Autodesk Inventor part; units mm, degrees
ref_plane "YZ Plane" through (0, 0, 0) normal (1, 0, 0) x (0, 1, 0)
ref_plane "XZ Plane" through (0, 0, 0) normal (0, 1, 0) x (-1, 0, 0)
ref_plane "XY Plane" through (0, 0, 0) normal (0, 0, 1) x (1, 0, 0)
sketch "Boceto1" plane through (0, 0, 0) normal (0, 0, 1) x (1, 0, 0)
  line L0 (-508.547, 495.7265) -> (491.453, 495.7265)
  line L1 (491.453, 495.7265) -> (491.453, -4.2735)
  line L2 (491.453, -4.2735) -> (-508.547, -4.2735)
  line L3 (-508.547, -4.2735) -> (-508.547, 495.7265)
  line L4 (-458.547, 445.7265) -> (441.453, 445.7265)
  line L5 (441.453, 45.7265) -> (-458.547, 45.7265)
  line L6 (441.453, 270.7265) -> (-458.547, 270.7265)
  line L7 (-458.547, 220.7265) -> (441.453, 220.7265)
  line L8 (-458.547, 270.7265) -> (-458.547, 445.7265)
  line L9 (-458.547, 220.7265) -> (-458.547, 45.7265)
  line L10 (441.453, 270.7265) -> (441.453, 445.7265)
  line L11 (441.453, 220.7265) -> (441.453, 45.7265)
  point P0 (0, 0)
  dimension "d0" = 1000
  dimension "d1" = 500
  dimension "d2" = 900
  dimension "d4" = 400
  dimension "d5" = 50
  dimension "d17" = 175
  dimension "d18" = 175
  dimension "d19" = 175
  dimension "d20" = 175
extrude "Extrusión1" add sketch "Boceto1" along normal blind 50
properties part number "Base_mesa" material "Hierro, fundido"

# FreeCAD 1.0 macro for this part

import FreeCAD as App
import Part
import Sketcher
from FreeCAD import Vector
Q = App.Units.Quantity

doc = App.newDocument("Part")
params = doc.addObject("Spreadsheet::Sheet", "Params")
for row, (alias, value) in enumerate([
    ("sketch1_width", "1000 mm"),
    ("sketch1_width2", "900 mm"),
    ("sketch1_height", "500 mm"),
    ("sketch1_height2", "175 mm"),
    ("pad1_length", "50 mm"),
], start=1):
    params.set(f"A{row}", alias)
    params.set(f"B{row}", "=" + value)
    params.setAlias(f"B{row}", alias)

body = doc.addObject("PartDesign::Body", "Body")

# Sketch on XY plane
sketch1 = body.newObject("Sketcher::SketchObject", "Sketch")
sketch1.AttachmentSupport = (doc.getObject("XY_Plane"), [""])
sketch1.MapMode = "FlatFace"
sketch1.addGeometry([
    Part.LineSegment(Vector(491, 496, 0), Vector(-509, 496, 0)),  # 0
    Part.LineSegment(Vector(-509, 496, 0), Vector(-509, -4, 0)),  # 1
    Part.LineSegment(Vector(-509, -4, 0), Vector(491, -4, 0)),  # 2
    Part.LineSegment(Vector(491, -4, 0), Vector(491, 496, 0)),  # 3
    Part.LineSegment(Vector(441, 221, 0), Vector(441, 46, 0)),  # 4
    Part.LineSegment(Vector(441, 46, 0), Vector(-459, 46, 0)),  # 5
    Part.LineSegment(Vector(-459, 46, 0), Vector(-459, 221, 0)),  # 6
    Part.LineSegment(Vector(-459, 221, 0), Vector(441, 221, 0)),  # 7
    Part.LineSegment(Vector(-459, 271, 0), Vector(-459, 446, 0)),  # 8
    Part.LineSegment(Vector(-459, 446, 0), Vector(441, 446, 0)),  # 9
    Part.LineSegment(Vector(441, 446, 0), Vector(441, 271, 0)),  # 10
    Part.LineSegment(Vector(441, 271, 0), Vector(-459, 271, 0)),  # 11
], False)
sketch1.addConstraint([
    Sketcher.Constraint("Coincident", 0, 2, 1, 1),
    Sketcher.Constraint("Coincident", 1, 2, 2, 1),
    Sketcher.Constraint("Coincident", 2, 2, 3, 1),
    Sketcher.Constraint("Coincident", 3, 2, 0, 1),
    Sketcher.Constraint("Coincident", 4, 2, 5, 1),
    Sketcher.Constraint("Coincident", 5, 2, 6, 1),
    Sketcher.Constraint("Coincident", 6, 2, 7, 1),
    Sketcher.Constraint("Coincident", 7, 2, 4, 1),
    Sketcher.Constraint("Coincident", 8, 2, 9, 1),
    Sketcher.Constraint("Coincident", 9, 2, 10, 1),
    Sketcher.Constraint("Coincident", 10, 2, 11, 1),
    Sketcher.Constraint("Coincident", 11, 2, 8, 1),
    Sketcher.Constraint("Horizontal", 0),
    Sketcher.Constraint("Vertical", 1),
    Sketcher.Constraint("Horizontal", 2),
    Sketcher.Constraint("Vertical", 3),
    Sketcher.Constraint("Vertical", 4),
    Sketcher.Constraint("Horizontal", 5),
    Sketcher.Constraint("Vertical", 6),
    Sketcher.Constraint("Horizontal", 7),
    Sketcher.Constraint("Vertical", 8),
    Sketcher.Constraint("Horizontal", 9),
    Sketcher.Constraint("Vertical", 10),
    Sketcher.Constraint("Horizontal", 11),
    Sketcher.Constraint("Vertical", 6, 2, 8, 2),
    Sketcher.Constraint("Vertical", 7, 2, 9, 2),
    Sketcher.Constraint("Equal", 6, 8),
    Sketcher.Constraint("DistanceX", 0, 2, 0, 1, Q("1000 mm")),
    Sketcher.Constraint("DistanceX", 5, 2, 5, 1, Q("900 mm")),
    Sketcher.Constraint("DistanceY", 1, 2, 1, 1, Q("500 mm")),
    Sketcher.Constraint("DistanceY", 4, 2, 4, 1, Q("175 mm")),
    Sketcher.Constraint("DistanceX", 4, 2, 2, 2, Q("50 mm")),
    Sketcher.Constraint("DistanceY", 2, 2, 4, 2, Q("50 mm")),
    Sketcher.Constraint("DistanceY", 8, 2, 0, 2, Q("50 mm")),
    Sketcher.Constraint("DistanceX", 0, 2, -1, 1, Q("508.547 mm")),
    Sketcher.Constraint("DistanceY", -1, 1, 0, 2, Q("495.7265 mm")),
])
sketch1.setExpression("Constraints[27]", "Params.sketch1_width")
sketch1.setExpression("Constraints[28]", "Params.sketch1_width2")
sketch1.setExpression("Constraints[29]", "Params.sketch1_height")
sketch1.setExpression("Constraints[30]", "Params.sketch1_height2")
pad1 = body.newObject("PartDesign::Pad", "Pad")
pad1.Profile = sketch1
pad1.setExpression("Length", "Params.pad1_length")

doc.recompute()
